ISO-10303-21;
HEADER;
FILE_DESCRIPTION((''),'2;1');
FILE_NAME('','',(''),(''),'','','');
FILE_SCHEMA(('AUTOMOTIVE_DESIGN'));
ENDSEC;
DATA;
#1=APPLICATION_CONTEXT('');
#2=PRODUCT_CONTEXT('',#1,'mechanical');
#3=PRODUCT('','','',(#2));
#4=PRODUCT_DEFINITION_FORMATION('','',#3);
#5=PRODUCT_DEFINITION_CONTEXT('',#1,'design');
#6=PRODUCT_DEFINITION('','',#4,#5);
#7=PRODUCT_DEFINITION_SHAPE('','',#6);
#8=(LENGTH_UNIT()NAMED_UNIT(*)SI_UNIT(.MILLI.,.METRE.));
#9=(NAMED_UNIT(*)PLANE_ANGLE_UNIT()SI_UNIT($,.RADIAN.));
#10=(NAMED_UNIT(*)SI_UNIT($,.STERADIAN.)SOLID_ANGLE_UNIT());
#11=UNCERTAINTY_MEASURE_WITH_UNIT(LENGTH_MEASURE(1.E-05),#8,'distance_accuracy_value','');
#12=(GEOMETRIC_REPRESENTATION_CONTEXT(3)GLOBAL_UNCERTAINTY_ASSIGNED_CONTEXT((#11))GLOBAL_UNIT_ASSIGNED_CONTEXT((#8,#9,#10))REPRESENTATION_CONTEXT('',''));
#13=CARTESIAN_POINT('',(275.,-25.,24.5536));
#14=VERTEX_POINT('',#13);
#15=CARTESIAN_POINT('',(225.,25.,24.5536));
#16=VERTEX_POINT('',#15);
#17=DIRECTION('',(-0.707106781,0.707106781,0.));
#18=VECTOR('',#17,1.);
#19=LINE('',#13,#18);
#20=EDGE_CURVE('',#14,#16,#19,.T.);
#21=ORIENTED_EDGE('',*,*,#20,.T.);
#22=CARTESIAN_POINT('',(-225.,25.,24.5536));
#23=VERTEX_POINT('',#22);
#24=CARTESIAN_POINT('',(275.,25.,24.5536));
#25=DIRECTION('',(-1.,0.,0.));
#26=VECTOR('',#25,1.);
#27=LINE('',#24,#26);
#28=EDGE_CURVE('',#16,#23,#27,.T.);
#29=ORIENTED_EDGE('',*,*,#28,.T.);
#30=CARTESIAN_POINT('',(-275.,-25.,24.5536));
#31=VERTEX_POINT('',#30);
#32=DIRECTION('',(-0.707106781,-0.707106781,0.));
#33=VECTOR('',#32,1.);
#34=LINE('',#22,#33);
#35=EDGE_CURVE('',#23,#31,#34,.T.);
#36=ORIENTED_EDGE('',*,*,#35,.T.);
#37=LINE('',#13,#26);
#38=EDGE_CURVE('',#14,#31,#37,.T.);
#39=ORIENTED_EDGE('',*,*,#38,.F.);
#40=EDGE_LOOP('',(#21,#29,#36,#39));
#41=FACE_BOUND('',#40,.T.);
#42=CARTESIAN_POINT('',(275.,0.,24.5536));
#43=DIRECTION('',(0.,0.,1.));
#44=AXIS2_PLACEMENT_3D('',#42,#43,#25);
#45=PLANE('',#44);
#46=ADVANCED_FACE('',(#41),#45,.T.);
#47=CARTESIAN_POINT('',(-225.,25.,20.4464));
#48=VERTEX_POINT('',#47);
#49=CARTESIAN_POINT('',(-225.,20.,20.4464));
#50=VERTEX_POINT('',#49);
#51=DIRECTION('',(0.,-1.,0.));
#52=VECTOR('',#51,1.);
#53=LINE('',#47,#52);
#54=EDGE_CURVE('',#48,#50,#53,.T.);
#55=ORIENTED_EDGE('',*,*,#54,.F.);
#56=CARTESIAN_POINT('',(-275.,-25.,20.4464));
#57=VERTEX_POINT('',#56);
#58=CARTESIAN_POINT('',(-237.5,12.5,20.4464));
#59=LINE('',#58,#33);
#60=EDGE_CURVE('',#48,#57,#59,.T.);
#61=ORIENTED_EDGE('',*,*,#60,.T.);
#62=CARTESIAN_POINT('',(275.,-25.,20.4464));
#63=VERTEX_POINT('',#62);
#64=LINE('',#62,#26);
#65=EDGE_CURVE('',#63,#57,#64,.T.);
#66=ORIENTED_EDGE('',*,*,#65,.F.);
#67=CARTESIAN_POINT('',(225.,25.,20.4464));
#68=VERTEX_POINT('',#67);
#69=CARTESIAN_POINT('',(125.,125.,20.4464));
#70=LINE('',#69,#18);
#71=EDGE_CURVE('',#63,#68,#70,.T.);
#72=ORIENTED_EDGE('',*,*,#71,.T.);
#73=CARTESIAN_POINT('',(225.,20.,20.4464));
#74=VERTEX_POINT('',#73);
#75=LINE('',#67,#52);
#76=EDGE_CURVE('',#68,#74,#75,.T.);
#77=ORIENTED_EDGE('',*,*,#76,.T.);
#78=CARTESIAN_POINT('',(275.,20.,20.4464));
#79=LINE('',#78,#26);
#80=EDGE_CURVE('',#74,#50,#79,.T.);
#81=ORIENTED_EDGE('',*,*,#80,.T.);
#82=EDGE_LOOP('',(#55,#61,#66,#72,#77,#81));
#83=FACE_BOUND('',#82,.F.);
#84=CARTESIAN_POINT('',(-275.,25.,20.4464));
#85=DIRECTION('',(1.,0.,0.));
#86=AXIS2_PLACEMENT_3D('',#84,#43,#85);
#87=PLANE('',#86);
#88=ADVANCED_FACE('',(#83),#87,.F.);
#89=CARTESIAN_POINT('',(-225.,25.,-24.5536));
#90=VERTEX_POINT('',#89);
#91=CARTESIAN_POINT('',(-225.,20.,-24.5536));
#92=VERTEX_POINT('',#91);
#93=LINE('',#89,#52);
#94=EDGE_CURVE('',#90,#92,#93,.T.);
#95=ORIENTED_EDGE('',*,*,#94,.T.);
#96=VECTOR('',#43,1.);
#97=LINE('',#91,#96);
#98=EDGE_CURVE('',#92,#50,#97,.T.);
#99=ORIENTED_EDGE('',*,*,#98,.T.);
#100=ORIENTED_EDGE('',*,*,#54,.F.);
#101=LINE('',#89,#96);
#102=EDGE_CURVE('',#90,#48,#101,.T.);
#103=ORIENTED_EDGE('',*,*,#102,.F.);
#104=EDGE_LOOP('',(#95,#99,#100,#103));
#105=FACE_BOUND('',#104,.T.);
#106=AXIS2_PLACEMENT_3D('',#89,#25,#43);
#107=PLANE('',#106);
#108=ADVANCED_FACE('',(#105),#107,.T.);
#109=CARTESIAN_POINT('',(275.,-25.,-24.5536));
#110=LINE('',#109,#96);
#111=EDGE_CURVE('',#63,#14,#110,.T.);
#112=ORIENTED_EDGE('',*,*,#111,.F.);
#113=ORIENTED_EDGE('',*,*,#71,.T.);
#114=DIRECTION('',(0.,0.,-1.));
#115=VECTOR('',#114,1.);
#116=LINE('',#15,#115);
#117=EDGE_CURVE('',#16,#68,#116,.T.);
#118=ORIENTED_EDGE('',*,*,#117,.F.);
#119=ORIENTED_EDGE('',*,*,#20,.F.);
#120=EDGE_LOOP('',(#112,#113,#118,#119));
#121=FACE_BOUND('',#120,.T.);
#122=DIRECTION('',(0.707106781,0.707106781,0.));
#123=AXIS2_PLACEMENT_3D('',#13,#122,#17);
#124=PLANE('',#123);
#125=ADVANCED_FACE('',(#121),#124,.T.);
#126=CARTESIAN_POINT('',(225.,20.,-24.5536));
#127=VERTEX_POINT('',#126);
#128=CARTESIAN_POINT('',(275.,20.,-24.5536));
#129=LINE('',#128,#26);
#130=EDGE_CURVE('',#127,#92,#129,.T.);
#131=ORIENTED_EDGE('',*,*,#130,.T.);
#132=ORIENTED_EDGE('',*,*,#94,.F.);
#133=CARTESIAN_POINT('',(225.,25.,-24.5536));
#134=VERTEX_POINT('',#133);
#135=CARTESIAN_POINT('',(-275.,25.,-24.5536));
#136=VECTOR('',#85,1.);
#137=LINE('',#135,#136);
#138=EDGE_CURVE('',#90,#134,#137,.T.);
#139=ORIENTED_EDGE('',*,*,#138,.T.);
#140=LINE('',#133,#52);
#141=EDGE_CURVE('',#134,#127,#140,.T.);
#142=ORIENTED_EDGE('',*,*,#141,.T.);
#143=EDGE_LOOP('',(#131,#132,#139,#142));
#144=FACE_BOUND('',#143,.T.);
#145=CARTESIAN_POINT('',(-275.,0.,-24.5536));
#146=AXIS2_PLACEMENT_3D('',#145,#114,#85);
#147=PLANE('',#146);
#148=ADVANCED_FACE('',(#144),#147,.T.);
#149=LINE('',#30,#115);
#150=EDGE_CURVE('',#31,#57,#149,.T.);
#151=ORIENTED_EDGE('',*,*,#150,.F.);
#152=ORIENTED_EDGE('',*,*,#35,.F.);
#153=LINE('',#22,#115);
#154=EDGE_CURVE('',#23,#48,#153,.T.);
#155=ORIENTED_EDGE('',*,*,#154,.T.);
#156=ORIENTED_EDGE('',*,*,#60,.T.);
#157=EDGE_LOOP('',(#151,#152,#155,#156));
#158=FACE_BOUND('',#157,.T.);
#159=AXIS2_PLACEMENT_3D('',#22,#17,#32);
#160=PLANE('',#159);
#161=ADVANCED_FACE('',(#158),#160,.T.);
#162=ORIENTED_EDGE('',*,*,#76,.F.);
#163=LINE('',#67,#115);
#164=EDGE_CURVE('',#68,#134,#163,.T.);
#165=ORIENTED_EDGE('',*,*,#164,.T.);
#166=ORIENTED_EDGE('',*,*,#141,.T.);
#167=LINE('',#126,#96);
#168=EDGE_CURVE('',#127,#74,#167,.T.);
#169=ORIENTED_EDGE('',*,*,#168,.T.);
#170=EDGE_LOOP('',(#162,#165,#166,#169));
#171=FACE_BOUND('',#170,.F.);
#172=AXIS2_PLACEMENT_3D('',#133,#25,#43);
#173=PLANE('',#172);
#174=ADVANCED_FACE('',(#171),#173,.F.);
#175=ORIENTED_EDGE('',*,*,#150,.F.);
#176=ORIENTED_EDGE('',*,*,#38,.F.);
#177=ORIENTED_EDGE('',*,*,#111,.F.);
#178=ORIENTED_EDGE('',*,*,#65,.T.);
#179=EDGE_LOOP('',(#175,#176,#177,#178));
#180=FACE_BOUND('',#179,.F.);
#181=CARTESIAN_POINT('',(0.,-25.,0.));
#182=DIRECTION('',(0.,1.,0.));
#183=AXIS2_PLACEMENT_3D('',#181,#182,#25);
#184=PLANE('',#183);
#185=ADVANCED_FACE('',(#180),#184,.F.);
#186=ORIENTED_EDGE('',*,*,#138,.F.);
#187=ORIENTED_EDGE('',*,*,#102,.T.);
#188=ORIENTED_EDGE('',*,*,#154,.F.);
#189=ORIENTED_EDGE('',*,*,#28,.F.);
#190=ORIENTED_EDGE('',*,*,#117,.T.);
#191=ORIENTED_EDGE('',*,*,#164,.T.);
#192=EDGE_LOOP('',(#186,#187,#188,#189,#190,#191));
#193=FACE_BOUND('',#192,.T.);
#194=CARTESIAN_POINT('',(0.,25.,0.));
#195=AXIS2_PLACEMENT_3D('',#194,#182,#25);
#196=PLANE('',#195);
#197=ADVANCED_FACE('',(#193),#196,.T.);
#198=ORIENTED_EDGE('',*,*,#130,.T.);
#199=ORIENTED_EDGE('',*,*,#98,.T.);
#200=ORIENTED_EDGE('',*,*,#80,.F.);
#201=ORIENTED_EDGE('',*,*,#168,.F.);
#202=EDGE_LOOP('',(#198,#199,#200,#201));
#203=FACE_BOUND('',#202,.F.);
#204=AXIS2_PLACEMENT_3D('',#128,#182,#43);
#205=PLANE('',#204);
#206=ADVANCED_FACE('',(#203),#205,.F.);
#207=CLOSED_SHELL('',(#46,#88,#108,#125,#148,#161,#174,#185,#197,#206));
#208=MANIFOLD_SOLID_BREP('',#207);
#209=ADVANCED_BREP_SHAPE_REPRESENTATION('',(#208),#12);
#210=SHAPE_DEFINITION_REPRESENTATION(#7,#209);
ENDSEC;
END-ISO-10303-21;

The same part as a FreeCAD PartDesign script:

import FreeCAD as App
import Part
import Sketcher

V = App.Vector
Q = App.Units.Quantity

doc = App.newDocument("Part")
body = doc.addObject("PartDesign::Body", "Body")

# Sketch on XZ plane
sketch1 = doc.addObject("Sketcher::SketchObject", "Sketch")
body.addObject(sketch1)
sketch1.AttachmentSupport = (doc.XZ_Plane, [""])
sketch1.MapMode = "FlatFace"
sketch1.addGeometry(Part.LineSegment(V(-275, 25, 0), V(275, 25, 0)), False)
sketch1.addGeometry(Part.LineSegment(V(275, 25, 0), V(275, -25, 0)), False)
sketch1.addGeometry(Part.LineSegment(V(275, -25, 0), V(-275, -25, 0)), False)
sketch1.addGeometry(Part.LineSegment(V(-275, -25, 0), V(-275, 25, 0)), False)
sketch1.addConstraint(Sketcher.Constraint("Coincident", 0, 2, 1, 1))
sketch1.addConstraint(Sketcher.Constraint("Coincident", 1, 2, 2, 1))
sketch1.addConstraint(Sketcher.Constraint("Coincident", 2, 2, 3, 1))
sketch1.addConstraint(Sketcher.Constraint("Coincident", 3, 2, 0, 1))
sketch1.addConstraint(Sketcher.Constraint("Horizontal", 0))
sketch1.addConstraint(Sketcher.Constraint("Vertical", 1))
sketch1.addConstraint(Sketcher.Constraint("Horizontal", 2))
sketch1.addConstraint(Sketcher.Constraint("Vertical", 3))
sketch1.addConstraint(Sketcher.Constraint("Symmetric", 0, 2, 2, 2, -1, 1))
sketch1.addConstraint(Sketcher.Constraint("DistanceX", 0, 1, 0, 2, Q("550 mm")))
sketch1.addConstraint(Sketcher.Constraint("DistanceY", 1, 2, 1, 1, Q("49.1072 mm")))
pad1 = doc.addObject("PartDesign::Pad", "Pad")
body.addObject(pad1)
pad1.Profile = sketch1
pad1.Length = 50
pad1.Midplane = True

# Sketch on YZ plane
sketch2 = doc.addObject("Sketcher::SketchObject", "Sketch001")
body.addObject(sketch2)
sketch2.AttachmentSupport = (doc.YZ_Plane, [""])
sketch2.MapMode = "FlatFace"
sketch2.AttachmentOffset = App.Placement(V(0, 0, 275), App.Rotation())
sketch2.addGeometry(Part.LineSegment(V(-25, 20, 0), V(-25, -25, 0)), False)
sketch2.addGeometry(Part.LineSegment(V(-25, -25, 0), V(20, -25, 0)), False)
sketch2.addGeometry(Part.LineSegment(V(20, -25, 0), V(20, 20, 0)), False)
sketch2.addGeometry(Part.LineSegment(V(20, 20, 0), V(-25, 20, 0)), False)
sketch2.addConstraint(Sketcher.Constraint("Coincident", 0, 2, 1, 1))
sketch2.addConstraint(Sketcher.Constraint("Coincident", 1, 2, 2, 1))
sketch2.addConstraint(Sketcher.Constraint("Coincident", 2, 2, 3, 1))
sketch2.addConstraint(Sketcher.Constraint("Coincident", 3, 2, 0, 1))
sketch2.addConstraint(Sketcher.Constraint("Vertical", 0))
sketch2.addConstraint(Sketcher.Constraint("Horizontal", 1))
sketch2.addConstraint(Sketcher.Constraint("Vertical", 2))
sketch2.addConstraint(Sketcher.Constraint("Horizontal", 3))
sketch2.addConstraint(Sketcher.Constraint("Equal", 3, 0))
sketch2.addConstraint(Sketcher.Constraint("DistanceX", 1, 1, 1, 2, Q("45 mm")))
sketch2.addConstraint(Sketcher.Constraint("DistanceX", 0, 2, -1, 1, Q("25 mm")))
sketch2.addConstraint(Sketcher.Constraint("DistanceY", 0, 2, -1, 1, Q("24.5536 mm")))
pocket1 = doc.addObject("PartDesign::Pocket", "Pocket")
body.addObject(pocket1)
pocket1.Profile = sketch2
pocket1.Type = "ThroughAll"

# Sketch on XZ plane
sketch3 = doc.addObject("Sketcher::SketchObject", "Sketch002")
body.addObject(sketch3)
sketch3.AttachmentSupport = (doc.XZ_Plane, [""])
sketch3.MapMode = "FlatFace"
sketch3.AttachmentOffset = App.Placement(V(0, 0, -25), App.Rotation())
sketch3.addGeometry(Part.LineSegment(V(-225, -25, 0), V(-275, -25, 0)), False)
sketch3.addGeometry(Part.LineSegment(V(-275, -25, 0), V(-275, 20, 0)), False)
sketch3.addGeometry(Part.LineSegment(V(-275, 20, 0), V(-225, 20, 0)), False)
sketch3.addGeometry(Part.LineSegment(V(-225, 20, 0), V(-225, -25, 0)), False)
sketch3.addGeometry(Part.LineSegment(V(275, -25, 0), V(225, -25, 0)), False)
sketch3.addGeometry(Part.LineSegment(V(225, -25, 0), V(225, 20, 0)), False)
sketch3.addGeometry(Part.LineSegment(V(225, 20, 0), V(275, 20, 0)), False)
sketch3.addGeometry(Part.LineSegment(V(275, 20, 0), V(275, -25, 0)), False)
sketch3.addConstraint(Sketcher.Constraint("Coincident", 0, 2, 1, 1))
sketch3.addConstraint(Sketcher.Constraint("Coincident", 1, 2, 2, 1))
sketch3.addConstraint(Sketcher.Constraint("Coincident", 2, 2, 3, 1))
sketch3.addConstraint(Sketcher.Constraint("Coincident", 3, 2, 0, 1))
sketch3.addConstraint(Sketcher.Constraint("Coincident", 4, 2, 5, 1))
sketch3.addConstraint(Sketcher.Constraint("Coincident", 5, 2, 6, 1))
sketch3.addConstraint(Sketcher.Constraint("Coincident", 6, 2, 7, 1))
sketch3.addConstraint(Sketcher.Constraint("Coincident", 7, 2, 4, 1))
sketch3.addConstraint(Sketcher.Constraint("Horizontal", 0))
sketch3.addConstraint(Sketcher.Constraint("Vertical", 1))
sketch3.addConstraint(Sketcher.Constraint("Horizontal", 2))
sketch3.addConstraint(Sketcher.Constraint("Vertical", 3))
sketch3.addConstraint(Sketcher.Constraint("Horizontal", 4))
sketch3.addConstraint(Sketcher.Constraint("Vertical", 5))
sketch3.addConstraint(Sketcher.Constraint("Horizontal", 6))
sketch3.addConstraint(Sketcher.Constraint("Vertical", 7))
sketch3.addConstraint(Sketcher.Constraint("Symmetric", 3, 2, 4, 2, -2))
sketch3.addConstraint(Sketcher.Constraint("Symmetric", 1, 2, 6, 2, -2))
sketch3.addConstraint(Sketcher.Constraint("DistanceX", 0, 2, 0, 1, Q("50 mm")))
sketch3.addConstraint(Sketcher.Constraint("DistanceY", 1, 1, 1, 2, Q("45 mm")))
sketch3.addConstraint(Sketcher.Constraint("DistanceX", 0, 2, -1, 1, Q("275 mm")))
sketch3.addConstraint(Sketcher.Constraint("DistanceY", 0, 2, -1, 1, Q("24.5536 mm")))
pocket2 = doc.addObject("PartDesign::Pocket", "Pocket001")
body.addObject(pocket2)
pocket2.Profile = sketch3
pocket2.Length = 10
pocket2.Reversed = True

# Sketch on XY plane
sketch4 = doc.addObject("Sketcher::SketchObject", "Sketch003")
body.addObject(sketch4)
sketch4.AttachmentSupport = (doc.XY_Plane, [""])
sketch4.MapMode = "FlatFace"
sketch4.AttachmentOffset = App.Placement(V(0, 0, 24.5536), App.Rotation())
sketch4.addGeometry(Part.LineSegment(V(-275, -25, 0), V(-225, 25, 0)), False)
sketch4.addGeometry(Part.LineSegment(V(-225, 25, 0), V(-275, 25, 0)), False)
sketch4.addGeometry(Part.LineSegment(V(-275, 25, 0), V(-275, -25, 0)), False)
sketch4.addGeometry(Part.LineSegment(V(275, 25, 0), V(225, 25, 0)), False)
sketch4.addGeometry(Part.LineSegment(V(225, 25, 0), V(275, -25, 0)), False)
sketch4.addGeometry(Part.LineSegment(V(275, -25, 0), V(275, 25, 0)), False)
sketch4.addConstraint(Sketcher.Constraint("Coincident", 0, 2, 1, 1))
sketch4.addConstraint(Sketcher.Constraint("Coincident", 1, 2, 2, 1))
sketch4.addConstraint(Sketcher.Constraint("Coincident", 2, 2, 0, 1))
sketch4.addConstraint(Sketcher.Constraint("Coincident", 3, 2, 4, 1))
sketch4.addConstraint(Sketcher.Constraint("Coincident", 4, 2, 5, 1))
sketch4.addConstraint(Sketcher.Constraint("Coincident", 5, 2, 3, 1))
sketch4.addConstraint(Sketcher.Constraint("Horizontal", 1))
sketch4.addConstraint(Sketcher.Constraint("Vertical", 2))
sketch4.addConstraint(Sketcher.Constraint("Horizontal", 3))
sketch4.addConstraint(Sketcher.Constraint("Vertical", 5))
sketch4.addConstraint(Sketcher.Constraint("Symmetric", 1, 2, 4, 2, -1, 1))
sketch4.addConstraint(Sketcher.Constraint("Symmetric", 0, 2, 3, 2, -2))
sketch4.addConstraint(Sketcher.Constraint("Perpendicular", 0, 4))
sketch4.addConstraint(Sketcher.Constraint("Horizontal", 2, 2, 4, 2))
sketch4.addConstraint(Sketcher.Constraint("DistanceX", 1, 2, 1, 1, Q("50 mm")))
sketch4.addConstraint(Sketcher.Constraint("DistanceX", 0, 2, -1, 1, Q("225 mm")))
pocket3 = doc.addObject("PartDesign::Pocket", "Pocket002")
body.addObject(pocket3)
pocket3.Profile = sketch4
pocket3.Length = 5

doc.recompute()
